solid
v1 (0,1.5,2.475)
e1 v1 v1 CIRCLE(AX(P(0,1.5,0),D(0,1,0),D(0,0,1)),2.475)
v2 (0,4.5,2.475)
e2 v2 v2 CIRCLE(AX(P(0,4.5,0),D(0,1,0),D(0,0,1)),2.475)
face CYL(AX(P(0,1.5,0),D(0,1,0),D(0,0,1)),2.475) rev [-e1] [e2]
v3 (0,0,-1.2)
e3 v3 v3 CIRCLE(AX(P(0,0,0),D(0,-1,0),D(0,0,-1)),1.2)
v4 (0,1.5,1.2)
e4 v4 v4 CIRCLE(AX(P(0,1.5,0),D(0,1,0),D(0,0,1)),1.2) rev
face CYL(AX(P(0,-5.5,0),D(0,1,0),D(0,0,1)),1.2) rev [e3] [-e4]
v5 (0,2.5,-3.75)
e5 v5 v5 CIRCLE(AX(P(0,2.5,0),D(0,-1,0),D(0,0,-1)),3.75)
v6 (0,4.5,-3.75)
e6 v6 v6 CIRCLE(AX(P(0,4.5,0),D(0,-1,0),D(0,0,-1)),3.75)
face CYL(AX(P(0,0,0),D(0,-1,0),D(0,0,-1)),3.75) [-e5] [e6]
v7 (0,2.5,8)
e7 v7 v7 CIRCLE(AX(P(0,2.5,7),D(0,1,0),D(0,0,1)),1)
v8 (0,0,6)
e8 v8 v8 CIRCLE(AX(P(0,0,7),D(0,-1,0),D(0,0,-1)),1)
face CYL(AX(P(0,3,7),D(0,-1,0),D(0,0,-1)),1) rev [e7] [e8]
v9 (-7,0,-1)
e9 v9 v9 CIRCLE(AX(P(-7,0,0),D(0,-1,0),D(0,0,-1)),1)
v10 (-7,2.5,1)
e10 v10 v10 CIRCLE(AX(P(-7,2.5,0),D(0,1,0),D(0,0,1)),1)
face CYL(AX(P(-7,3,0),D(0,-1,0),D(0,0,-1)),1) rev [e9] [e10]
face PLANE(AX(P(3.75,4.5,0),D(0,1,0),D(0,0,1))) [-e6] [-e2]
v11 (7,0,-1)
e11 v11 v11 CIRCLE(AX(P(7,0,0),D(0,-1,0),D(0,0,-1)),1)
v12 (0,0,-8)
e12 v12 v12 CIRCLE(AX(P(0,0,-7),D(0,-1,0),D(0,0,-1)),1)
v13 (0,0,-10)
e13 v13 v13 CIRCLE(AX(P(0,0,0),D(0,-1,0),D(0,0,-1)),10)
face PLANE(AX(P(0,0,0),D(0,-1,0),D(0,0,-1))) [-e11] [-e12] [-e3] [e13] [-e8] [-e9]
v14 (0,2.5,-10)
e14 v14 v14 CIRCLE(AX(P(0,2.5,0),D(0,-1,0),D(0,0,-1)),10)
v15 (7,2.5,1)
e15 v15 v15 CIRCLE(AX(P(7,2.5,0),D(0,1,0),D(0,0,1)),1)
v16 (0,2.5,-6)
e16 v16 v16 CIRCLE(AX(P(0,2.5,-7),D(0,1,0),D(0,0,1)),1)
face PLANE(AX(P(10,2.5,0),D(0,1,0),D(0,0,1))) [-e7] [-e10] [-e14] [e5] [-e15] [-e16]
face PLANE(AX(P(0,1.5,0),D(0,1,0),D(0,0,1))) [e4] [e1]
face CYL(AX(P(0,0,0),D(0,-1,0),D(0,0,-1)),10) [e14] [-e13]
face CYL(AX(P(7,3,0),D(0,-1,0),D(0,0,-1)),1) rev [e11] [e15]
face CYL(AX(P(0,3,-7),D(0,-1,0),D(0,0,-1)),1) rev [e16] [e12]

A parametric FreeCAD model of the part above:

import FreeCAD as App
import Part
import Sketcher

V = App.Vector

doc = App.newDocument("Part")
body = doc.addObject("PartDesign::Body", "Body")

sketch1 = body.newObject("Sketcher::SketchObject", "Sketch")
sketch1.AttachmentSupport = (doc.getObject("XY_Plane"), [""])
sketch1.MapMode = "FlatFace"
sketch1.addGeometry(Part.LineSegment(V(0, 0, 0), V(10, 0, 0)), False)
sketch1.addGeometry(Part.LineSegment(V(10, 0, 0), V(10, 2.5, 0)), False)
sketch1.addGeometry(Part.LineSegment(V(10, 2.5, 0), V(3.75, 2.5, 0)), False)
sketch1.addGeometry(Part.LineSegment(V(3.75, 2.5, 0), V(3.75, 4.5, 0)), False)
sketch1.addGeometry(Part.LineSegment(V(3.75, 4.5, 0), V(0, 4.5, 0)), False)
sketch1.addGeometry(Part.LineSegment(V(0, 4.5, 0), V(0, 0, 0)), False)
sketch1.addConstraint(Sketcher.Constraint("Coincident", 0, 2, 1, 1))
sketch1.addConstraint(Sketcher.Constraint("Coincident", 1, 2, 2, 1))
sketch1.addConstraint(Sketcher.Constraint("Coincident", 2, 2, 3, 1))
sketch1.addConstraint(Sketcher.Constraint("Coincident", 3, 2, 4, 1))
sketch1.addConstraint(Sketcher.Constraint("Coincident", 4, 2, 5, 1))
sketch1.addConstraint(Sketcher.Constraint("Coincident", 5, 2, 0, 1))
sketch1.addConstraint(Sketcher.Constraint("Horizontal", 0))
sketch1.addConstraint(Sketcher.Constraint("Vertical", 1))
sketch1.addConstraint(Sketcher.Constraint("Horizontal", 2))
sketch1.addConstraint(Sketcher.Constraint("Vertical", 3))
sketch1.addConstraint(Sketcher.Constraint("Horizontal", 4))
sketch1.addConstraint(Sketcher.Constraint("Vertical", 5))
sketch1.addConstraint(Sketcher.Constraint("Coincident", 5, 2, -1, 1))
sketch1.addConstraint(Sketcher.Constraint("DistanceX", 0, 1, 0, 2, 10.0))
sketch1.addConstraint(Sketcher.Constraint("DistanceY", 3, 1, 3, 2, 2.0))
sketch1.addConstraint(Sketcher.Constraint("DistanceY", 1, 1, 1, 2, 2.5))
sketch1.addConstraint(Sketcher.Constraint("DistanceX", 2, 2, 2, 1, 6.25))
revolution = body.newObject("PartDesign::Revolution", "Revolution")
revolution.Profile = sketch1
revolution.ReferenceAxis = (sketch1, ["V_Axis"])
revolution.Angle = 360

sketch2 = body.newObject("Sketcher::SketchObject", "Sketch001")
sketch2.AttachmentSupport = (doc.getObject("XZ_Plane"), [""])
sketch2.MapMode = "FlatFace"
sketch2.AttachmentOffset = App.Placement(V(0, 0, -4.5), App.Rotation())
sketch2.addGeometry(Part.Circle(V(0, 0, 0), V(0, 0, 1), 1.2), False)
sketch2.addConstraint(Sketcher.Constraint("Coincident", 0, 3, -1, 1))
sketch2.addConstraint(Sketcher.Constraint("Diameter", 0, 2.4))
pocket1 = body.newObject("PartDesign::Pocket", "Pocket")
pocket1.Profile = sketch2
pocket1.Length = 10
pocket1.Reversed = True

sketch3 = body.newObject("Sketcher::SketchObject", "Sketch002")
sketch3.AttachmentSupport = (doc.getObject("XZ_Plane"), [""])
sketch3.MapMode = "FlatFace"
sketch3.AttachmentOffset = App.Placement(V(0, 0, -4.5), App.Rotation())
sketch3.addGeometry(Part.Circle(V(0, 0, 0), V(0, 0, 1), 2.475), False)
sketch3.addConstraint(Sketcher.Constraint("Coincident", 0, 3, -1, 1))
sketch3.addConstraint(Sketcher.Constraint("Diameter", 0, 4.95))
pocket2 = body.newObject("PartDesign::Pocket", "Pocket001")
pocket2.Profile = sketch3
pocket2.Length = 3
pocket2.Reversed = True

sketch4 = body.newObject("Sketcher::SketchObject", "Sketch003")
sketch4.AttachmentSupport = (doc.getObject("XZ_Plane"), [""])
sketch4.MapMode = "FlatFace"
sketch4.addGeometry(Part.Circle(V(7, 0, 0), V(0, 0, 1), 1), False)
sketch4.addGeometry(Part.Circle(V(0, -7, 0), V(0, 0, 1), 1), False)
sketch4.addGeometry(Part.Circle(V(-7, 0, 0), V(0, 0, 1), 1), False)
sketch4.addGeometry(Part.Circle(V(0, 7, 0), V(0, 0, 1), 1), False)
sketch4.addConstraint(Sketcher.Constraint("Equal", 0, 1))
sketch4.addConstraint(Sketcher.Constraint("Equal", 1, 2))
sketch4.addConstraint(Sketcher.Constraint("Equal", 2, 3))
sketch4.addConstraint(Sketcher.Constraint("Symmetric", 0, 3, 2, 3, -1, 1))
sketch4.addConstraint(Sketcher.Constraint("Symmetric", 1, 3, 3, 3, -1, 1))
sketch4.addConstraint(Sketcher.Constraint("PointOnObject", 0, 3, -1))
sketch4.addConstraint(Sketcher.Constraint("PointOnObject", 1, 3, -2))
sketch4.addConstraint(Sketcher.Constraint("Diameter", 0, 2.0))
sketch4.addConstraint(Sketcher.Constraint("DistanceX", -1, 1, 0, 3, 7.0))
sketch4.addConstraint(Sketcher.Constraint("DistanceY", 1, 3, -1, 1, 7.0))
pocket3 = body.newObject("PartDesign::Pocket", "Pocket002")
pocket3.Profile = sketch4
pocket3.Length = 3

doc.recompute()
